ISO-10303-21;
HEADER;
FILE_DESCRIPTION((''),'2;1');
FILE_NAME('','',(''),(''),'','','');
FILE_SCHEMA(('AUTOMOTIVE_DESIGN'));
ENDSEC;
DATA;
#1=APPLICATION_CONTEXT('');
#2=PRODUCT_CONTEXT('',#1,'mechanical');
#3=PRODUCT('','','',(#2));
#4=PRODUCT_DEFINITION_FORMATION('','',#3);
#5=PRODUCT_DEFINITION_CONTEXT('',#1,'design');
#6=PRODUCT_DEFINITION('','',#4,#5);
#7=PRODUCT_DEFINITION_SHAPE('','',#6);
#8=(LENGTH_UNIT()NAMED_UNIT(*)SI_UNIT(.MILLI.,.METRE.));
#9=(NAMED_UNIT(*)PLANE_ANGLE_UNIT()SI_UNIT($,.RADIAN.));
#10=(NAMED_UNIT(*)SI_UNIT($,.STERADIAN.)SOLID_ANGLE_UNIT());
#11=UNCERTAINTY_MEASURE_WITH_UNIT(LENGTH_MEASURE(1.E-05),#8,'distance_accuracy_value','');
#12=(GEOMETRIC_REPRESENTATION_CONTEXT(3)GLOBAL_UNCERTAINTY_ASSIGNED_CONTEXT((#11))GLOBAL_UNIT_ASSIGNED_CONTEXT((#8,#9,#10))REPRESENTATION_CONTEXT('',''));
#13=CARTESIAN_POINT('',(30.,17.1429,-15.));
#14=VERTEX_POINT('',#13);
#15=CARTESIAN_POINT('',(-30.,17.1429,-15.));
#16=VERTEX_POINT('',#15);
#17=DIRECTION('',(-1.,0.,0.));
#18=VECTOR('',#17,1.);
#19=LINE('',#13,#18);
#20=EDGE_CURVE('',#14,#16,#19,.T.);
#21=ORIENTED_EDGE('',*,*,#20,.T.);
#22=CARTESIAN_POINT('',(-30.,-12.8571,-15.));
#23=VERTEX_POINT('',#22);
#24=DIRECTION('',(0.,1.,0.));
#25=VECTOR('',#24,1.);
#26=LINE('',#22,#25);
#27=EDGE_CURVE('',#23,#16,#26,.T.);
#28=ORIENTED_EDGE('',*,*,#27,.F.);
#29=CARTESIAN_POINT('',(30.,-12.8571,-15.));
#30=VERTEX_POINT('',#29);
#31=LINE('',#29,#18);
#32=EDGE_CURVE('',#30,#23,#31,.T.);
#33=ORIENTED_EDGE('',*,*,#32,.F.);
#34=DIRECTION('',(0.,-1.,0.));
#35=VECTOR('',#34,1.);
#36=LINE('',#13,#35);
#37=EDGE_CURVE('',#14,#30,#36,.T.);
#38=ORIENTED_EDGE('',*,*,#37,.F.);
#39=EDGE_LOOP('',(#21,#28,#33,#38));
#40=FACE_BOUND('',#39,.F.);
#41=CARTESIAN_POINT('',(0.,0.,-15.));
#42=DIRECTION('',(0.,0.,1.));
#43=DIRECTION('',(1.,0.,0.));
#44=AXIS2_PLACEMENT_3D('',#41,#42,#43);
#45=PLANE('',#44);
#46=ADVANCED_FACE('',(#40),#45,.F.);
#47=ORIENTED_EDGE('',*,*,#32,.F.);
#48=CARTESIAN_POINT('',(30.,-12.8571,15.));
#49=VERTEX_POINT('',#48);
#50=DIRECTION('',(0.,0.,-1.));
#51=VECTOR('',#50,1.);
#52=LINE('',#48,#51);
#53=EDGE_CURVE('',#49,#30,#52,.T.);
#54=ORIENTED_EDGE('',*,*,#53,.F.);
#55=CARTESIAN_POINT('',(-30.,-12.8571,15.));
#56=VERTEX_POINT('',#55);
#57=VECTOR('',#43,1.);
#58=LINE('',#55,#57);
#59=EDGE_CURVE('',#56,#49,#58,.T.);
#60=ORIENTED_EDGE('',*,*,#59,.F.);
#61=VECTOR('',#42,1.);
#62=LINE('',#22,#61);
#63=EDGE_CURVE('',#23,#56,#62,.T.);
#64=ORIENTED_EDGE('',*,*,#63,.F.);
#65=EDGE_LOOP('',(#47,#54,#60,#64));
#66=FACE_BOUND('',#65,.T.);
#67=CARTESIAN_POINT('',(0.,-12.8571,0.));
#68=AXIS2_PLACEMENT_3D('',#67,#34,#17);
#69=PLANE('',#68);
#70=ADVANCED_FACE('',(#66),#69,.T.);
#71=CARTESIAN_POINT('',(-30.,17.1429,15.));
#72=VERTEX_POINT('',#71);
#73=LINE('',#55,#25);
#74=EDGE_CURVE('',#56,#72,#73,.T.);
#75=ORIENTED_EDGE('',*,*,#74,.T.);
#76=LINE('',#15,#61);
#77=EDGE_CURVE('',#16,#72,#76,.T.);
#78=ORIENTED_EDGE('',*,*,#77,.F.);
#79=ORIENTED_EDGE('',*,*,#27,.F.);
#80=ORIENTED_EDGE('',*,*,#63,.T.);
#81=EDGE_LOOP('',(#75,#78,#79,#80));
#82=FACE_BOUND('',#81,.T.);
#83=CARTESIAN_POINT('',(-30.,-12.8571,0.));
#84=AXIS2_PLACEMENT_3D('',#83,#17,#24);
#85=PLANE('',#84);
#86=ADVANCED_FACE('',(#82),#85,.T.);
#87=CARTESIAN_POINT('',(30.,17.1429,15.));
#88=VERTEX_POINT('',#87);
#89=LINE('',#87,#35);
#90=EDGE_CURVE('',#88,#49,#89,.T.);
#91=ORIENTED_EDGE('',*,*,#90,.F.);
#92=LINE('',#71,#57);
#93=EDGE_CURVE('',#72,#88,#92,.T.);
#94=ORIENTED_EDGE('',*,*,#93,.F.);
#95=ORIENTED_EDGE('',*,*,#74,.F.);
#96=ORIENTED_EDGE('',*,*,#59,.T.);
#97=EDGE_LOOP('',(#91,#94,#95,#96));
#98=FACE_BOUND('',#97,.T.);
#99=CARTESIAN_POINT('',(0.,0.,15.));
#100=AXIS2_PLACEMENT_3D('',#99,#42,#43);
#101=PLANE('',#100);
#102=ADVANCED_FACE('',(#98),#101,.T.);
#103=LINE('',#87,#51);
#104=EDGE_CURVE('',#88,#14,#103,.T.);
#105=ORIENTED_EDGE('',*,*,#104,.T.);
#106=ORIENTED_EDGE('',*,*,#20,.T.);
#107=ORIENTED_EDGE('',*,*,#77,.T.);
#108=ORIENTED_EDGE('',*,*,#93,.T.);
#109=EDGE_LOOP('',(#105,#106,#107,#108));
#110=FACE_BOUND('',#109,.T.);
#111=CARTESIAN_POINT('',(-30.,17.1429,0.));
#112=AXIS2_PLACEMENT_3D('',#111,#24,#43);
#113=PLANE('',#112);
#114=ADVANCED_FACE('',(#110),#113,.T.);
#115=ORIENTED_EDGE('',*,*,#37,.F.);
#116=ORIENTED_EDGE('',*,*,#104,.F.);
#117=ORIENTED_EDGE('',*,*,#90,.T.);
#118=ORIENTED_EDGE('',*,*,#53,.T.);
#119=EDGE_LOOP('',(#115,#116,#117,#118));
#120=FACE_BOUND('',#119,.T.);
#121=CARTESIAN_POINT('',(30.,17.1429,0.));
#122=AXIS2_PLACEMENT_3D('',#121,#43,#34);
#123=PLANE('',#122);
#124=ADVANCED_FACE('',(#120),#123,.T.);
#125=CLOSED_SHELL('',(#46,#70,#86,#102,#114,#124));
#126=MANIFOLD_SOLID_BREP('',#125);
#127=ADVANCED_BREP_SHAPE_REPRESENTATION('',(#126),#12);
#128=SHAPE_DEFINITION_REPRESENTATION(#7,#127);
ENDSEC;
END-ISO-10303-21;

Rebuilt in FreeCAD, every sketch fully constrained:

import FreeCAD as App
import Part
import Sketcher

doc = App.newDocument("Part")
body = doc.addObject("PartDesign::Body", "Body")

# Sketch on XY plane
sketch1 = body.newObject("Sketcher::SketchObject", "Sketch")
sketch1.AttachmentSupport = (doc.getObject("XY_Plane"), [""])
sketch1.MapMode = "FlatFace"
sketch1.addGeometry([
    Part.LineSegment(App.Vector(-30, 17, 0), App.Vector(-30, -13, 0)),
    Part.LineSegment(App.Vector(-30, -13, 0), App.Vector(30, -13, 0)),
    Part.LineSegment(App.Vector(30, -13, 0), App.Vector(30, 17, 0)),
    Part.LineSegment(App.Vector(30, 17, 0), App.Vector(-30, 17, 0)),
], False)
sketch1.addConstraint([
    Sketcher.Constraint("Coincident", 0, 2, 1, 1),
    Sketcher.Constraint("Coincident", 1, 2, 2, 1),
    Sketcher.Constraint("Coincident", 2, 2, 3, 1),
    Sketcher.Constraint("Coincident", 3, 2, 0, 1),
    Sketcher.Constraint("Vertical", 0),
    Sketcher.Constraint("Horizontal", 1),
    Sketcher.Constraint("Vertical", 2),
    Sketcher.Constraint("Horizontal", 3),
    Sketcher.Constraint("DistanceX", 1, 1, 1, 2, 60.0),
    Sketcher.Constraint("DistanceY", 0, 2, 0, 1, 30.0),
    Sketcher.Constraint("DistanceX", 0, 2, -1, 1, 30.0),
    Sketcher.Constraint("DistanceY", 0, 2, -1, 1, 12.857),
])
pad1 = body.newObject("PartDesign::Pad", "Pad")
pad1.Profile = sketch1
pad1.Length = 30
pad1.Midplane = True

doc.recompute()
